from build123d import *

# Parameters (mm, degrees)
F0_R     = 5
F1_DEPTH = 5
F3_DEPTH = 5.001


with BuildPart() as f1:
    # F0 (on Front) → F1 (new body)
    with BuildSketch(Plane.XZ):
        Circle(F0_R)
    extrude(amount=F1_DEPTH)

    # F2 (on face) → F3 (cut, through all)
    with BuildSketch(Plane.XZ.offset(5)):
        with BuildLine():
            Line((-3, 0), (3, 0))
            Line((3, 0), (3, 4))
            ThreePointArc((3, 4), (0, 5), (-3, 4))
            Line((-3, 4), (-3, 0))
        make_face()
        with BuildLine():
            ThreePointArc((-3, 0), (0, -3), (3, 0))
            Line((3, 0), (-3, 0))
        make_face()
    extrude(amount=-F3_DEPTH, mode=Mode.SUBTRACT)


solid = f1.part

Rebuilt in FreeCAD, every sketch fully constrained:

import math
import FreeCAD as App
import Part
import Sketcher
from FreeCAD import Vector
Q = App.Units.Quantity

doc = App.newDocument("Part")
body = doc.addObject("PartDesign::Body", "Body")

sketch1 = doc.addObject("Sketcher::SketchObject", "Sketch")
body.addObject(sketch1)
sketch1.AttachmentSupport = (doc.XZ_Plane, [""])
sketch1.MapMode = "FlatFace"
sketch1.addGeometry(Part.Circle(Vector(0, 0, 0), Vector(0, 0, 1), 5), False)
sketch1.addConstraint([
    Sketcher.Constraint("Coincident", 0, 3, -1, 1),
    Sketcher.Constraint("Diameter", 0, Q("10 mm")),
])
pad1 = doc.addObject("PartDesign::Pad", "Pad")
body.addObject(pad1)
pad1.Profile = sketch1
pad1.Length = 5

sketch2 = doc.addObject("Sketcher::SketchObject", "Sketch001")
body.addObject(sketch2)
sketch2.AttachmentSupport = (doc.XZ_Plane, [""])
sketch2.MapMode = "FlatFace"
sketch2.AttachmentOffset = App.Placement(Vector(0, 0, 5), App.Rotation())
sketch2.addGeometry([
    Part.LineSegment(Vector(3, 0, 0), Vector(3, 4, 0)),
    Part.ArcOfCircle(Part.Circle(Vector(0, 0, 0), Vector(0, 0, 1), 5), math.radians(53.130102), math.radians(126.869898)),
    Part.LineSegment(Vector(-3, 4, 0), Vector(-3, 0, 0)),
    Part.ArcOfCircle(Part.Circle(Vector(0, 0, 0), Vector(0, 0, 1), 3), math.radians(180), math.radians(360)),
], False)
sketch2.addConstraint([
    Sketcher.Constraint("Coincident", 0, 2, 1, 1),
    Sketcher.Constraint("Coincident", 1, 2, 2, 1),
    Sketcher.Constraint("Tangent", 2, 2, 3, 1),
    Sketcher.Constraint("Tangent", 3, 2, 0, 1),
    Sketcher.Constraint("Vertical", 0),
    Sketcher.Constraint("Vertical", 2),
    Sketcher.Constraint("Coincident", 1, 3, -1, 1),
    Sketcher.Constraint("Coincident", 3, 3, -1, 1),
    Sketcher.Constraint("Radius", 1, Q("5 mm")),
    Sketcher.Constraint("Radius", 3, Q("3 mm")),
])
pocket1 = doc.addObject("PartDesign::Pocket", "Pocket")
body.addObject(pocket1)
pocket1.Profile = sketch2
pocket1.Type = "ThroughAll"

doc.recompute()
